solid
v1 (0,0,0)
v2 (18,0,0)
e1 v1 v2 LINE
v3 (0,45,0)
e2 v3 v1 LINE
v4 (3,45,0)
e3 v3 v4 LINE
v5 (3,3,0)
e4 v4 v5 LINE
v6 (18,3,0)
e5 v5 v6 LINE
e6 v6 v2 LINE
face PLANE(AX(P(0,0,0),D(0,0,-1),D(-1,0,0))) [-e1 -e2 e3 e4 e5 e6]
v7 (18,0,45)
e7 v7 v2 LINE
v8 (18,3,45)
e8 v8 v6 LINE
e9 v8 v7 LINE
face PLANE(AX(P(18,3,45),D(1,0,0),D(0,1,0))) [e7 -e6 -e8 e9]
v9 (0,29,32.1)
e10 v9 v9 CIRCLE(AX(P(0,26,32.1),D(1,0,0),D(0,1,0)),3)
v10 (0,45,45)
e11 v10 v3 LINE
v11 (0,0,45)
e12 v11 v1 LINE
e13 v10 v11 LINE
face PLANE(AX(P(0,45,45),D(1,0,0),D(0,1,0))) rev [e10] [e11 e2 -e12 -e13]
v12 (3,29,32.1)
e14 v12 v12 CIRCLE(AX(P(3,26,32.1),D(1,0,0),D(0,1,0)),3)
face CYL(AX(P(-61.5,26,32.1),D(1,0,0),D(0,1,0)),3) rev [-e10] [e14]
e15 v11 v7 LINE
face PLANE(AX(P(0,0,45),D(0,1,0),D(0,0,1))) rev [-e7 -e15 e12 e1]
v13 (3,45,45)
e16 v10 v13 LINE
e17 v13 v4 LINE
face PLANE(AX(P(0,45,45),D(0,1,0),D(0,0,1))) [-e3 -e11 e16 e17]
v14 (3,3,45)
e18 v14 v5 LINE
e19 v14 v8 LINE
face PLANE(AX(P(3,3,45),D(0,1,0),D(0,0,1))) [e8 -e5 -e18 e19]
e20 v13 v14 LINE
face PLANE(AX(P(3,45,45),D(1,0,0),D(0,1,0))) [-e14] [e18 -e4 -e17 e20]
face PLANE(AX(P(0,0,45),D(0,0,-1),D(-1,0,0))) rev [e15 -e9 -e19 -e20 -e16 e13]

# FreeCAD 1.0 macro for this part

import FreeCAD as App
import Part
import Sketcher

V = App.Vector
Q = App.Units.Quantity

doc = App.newDocument("Part")
body = doc.addObject("PartDesign::Body", "Body")

# Sketch on XY plane
sketch1 = doc.addObject("Sketcher::SketchObject", "Sketch")
body.addObject(sketch1)
sketch1.AttachmentSupport = (doc.XY_Plane, [""])
sketch1.MapMode = "FlatFace"
sketch1.addGeometry([
    Part.LineSegment(V(3, 45, 0), V(0, 45, 0)),  # 0
    Part.LineSegment(V(0, 45, 0), V(0, 0, 0)),  # 1
    Part.LineSegment(V(0, 0, 0), V(18, 0, 0)),  # 2
    Part.LineSegment(V(18, 0, 0), V(18, 3, 0)),  # 3
    Part.LineSegment(V(18, 3, 0), V(3, 3, 0)),  # 4
    Part.LineSegment(V(3, 3, 0), V(3, 45, 0)),  # 5
], False)
sketch1.addConstraint([
    Sketcher.Constraint("Coincident", 0, 2, 1, 1),
    Sketcher.Constraint("Coincident", 1, 2, 2, 1),
    Sketcher.Constraint("Coincident", 2, 2, 3, 1),
    Sketcher.Constraint("Coincident", 3, 2, 4, 1),
    Sketcher.Constraint("Coincident", 4, 2, 5, 1),
    Sketcher.Constraint("Coincident", 5, 2, 0, 1),
    Sketcher.Constraint("Horizontal", 0),
    Sketcher.Constraint("Vertical", 1),
    Sketcher.Constraint("Horizontal", 2),
    Sketcher.Constraint("Vertical", 3),
    Sketcher.Constraint("Horizontal", 4),
    Sketcher.Constraint("Vertical", 5),
    Sketcher.Constraint("Coincident", 1, 2, -1, 1),
    Sketcher.Constraint("Equal", 0, 3),
    Sketcher.Constraint("DistanceX", 0, 2, 0, 1, Q("3 mm")),
    Sketcher.Constraint("DistanceX", 2, 1, 2, 2, Q("18 mm")),
    Sketcher.Constraint("DistanceY", 1, 2, 1, 1, Q("45 mm")),
])
pad1 = doc.addObject("PartDesign::Pad", "Pad")
body.addObject(pad1)
pad1.Profile = sketch1
pad1.Length = 45

# Sketch on YZ plane
sketch2 = doc.addObject("Sketcher::SketchObject", "Sketch001")
body.addObject(sketch2)
sketch2.AttachmentSupport = (doc.YZ_Plane, [""])
sketch2.MapMode = "FlatFace"
sketch2.AttachmentOffset = App.Placement(V(0, 0, 3), App.Rotation())
sketch2.addGeometry(Part.Circle(V(26, 32.1, 0), V(0, 0, 1), 3), False)
sketch2.addConstraint([
    Sketcher.Constraint("Diameter", 0, Q("6 mm")),
    Sketcher.Constraint("DistanceX", -1, 1, 0, 3, Q("26 mm")),
    Sketcher.Constraint("DistanceY", -1, 1, 0, 3, Q("32.1 mm")),
])
pocket1 = doc.addObject("PartDesign::Pocket", "Pocket")
body.addObject(pocket1)
pocket1.Profile = sketch2
pocket1.Length = 64.5

doc.recompute()
